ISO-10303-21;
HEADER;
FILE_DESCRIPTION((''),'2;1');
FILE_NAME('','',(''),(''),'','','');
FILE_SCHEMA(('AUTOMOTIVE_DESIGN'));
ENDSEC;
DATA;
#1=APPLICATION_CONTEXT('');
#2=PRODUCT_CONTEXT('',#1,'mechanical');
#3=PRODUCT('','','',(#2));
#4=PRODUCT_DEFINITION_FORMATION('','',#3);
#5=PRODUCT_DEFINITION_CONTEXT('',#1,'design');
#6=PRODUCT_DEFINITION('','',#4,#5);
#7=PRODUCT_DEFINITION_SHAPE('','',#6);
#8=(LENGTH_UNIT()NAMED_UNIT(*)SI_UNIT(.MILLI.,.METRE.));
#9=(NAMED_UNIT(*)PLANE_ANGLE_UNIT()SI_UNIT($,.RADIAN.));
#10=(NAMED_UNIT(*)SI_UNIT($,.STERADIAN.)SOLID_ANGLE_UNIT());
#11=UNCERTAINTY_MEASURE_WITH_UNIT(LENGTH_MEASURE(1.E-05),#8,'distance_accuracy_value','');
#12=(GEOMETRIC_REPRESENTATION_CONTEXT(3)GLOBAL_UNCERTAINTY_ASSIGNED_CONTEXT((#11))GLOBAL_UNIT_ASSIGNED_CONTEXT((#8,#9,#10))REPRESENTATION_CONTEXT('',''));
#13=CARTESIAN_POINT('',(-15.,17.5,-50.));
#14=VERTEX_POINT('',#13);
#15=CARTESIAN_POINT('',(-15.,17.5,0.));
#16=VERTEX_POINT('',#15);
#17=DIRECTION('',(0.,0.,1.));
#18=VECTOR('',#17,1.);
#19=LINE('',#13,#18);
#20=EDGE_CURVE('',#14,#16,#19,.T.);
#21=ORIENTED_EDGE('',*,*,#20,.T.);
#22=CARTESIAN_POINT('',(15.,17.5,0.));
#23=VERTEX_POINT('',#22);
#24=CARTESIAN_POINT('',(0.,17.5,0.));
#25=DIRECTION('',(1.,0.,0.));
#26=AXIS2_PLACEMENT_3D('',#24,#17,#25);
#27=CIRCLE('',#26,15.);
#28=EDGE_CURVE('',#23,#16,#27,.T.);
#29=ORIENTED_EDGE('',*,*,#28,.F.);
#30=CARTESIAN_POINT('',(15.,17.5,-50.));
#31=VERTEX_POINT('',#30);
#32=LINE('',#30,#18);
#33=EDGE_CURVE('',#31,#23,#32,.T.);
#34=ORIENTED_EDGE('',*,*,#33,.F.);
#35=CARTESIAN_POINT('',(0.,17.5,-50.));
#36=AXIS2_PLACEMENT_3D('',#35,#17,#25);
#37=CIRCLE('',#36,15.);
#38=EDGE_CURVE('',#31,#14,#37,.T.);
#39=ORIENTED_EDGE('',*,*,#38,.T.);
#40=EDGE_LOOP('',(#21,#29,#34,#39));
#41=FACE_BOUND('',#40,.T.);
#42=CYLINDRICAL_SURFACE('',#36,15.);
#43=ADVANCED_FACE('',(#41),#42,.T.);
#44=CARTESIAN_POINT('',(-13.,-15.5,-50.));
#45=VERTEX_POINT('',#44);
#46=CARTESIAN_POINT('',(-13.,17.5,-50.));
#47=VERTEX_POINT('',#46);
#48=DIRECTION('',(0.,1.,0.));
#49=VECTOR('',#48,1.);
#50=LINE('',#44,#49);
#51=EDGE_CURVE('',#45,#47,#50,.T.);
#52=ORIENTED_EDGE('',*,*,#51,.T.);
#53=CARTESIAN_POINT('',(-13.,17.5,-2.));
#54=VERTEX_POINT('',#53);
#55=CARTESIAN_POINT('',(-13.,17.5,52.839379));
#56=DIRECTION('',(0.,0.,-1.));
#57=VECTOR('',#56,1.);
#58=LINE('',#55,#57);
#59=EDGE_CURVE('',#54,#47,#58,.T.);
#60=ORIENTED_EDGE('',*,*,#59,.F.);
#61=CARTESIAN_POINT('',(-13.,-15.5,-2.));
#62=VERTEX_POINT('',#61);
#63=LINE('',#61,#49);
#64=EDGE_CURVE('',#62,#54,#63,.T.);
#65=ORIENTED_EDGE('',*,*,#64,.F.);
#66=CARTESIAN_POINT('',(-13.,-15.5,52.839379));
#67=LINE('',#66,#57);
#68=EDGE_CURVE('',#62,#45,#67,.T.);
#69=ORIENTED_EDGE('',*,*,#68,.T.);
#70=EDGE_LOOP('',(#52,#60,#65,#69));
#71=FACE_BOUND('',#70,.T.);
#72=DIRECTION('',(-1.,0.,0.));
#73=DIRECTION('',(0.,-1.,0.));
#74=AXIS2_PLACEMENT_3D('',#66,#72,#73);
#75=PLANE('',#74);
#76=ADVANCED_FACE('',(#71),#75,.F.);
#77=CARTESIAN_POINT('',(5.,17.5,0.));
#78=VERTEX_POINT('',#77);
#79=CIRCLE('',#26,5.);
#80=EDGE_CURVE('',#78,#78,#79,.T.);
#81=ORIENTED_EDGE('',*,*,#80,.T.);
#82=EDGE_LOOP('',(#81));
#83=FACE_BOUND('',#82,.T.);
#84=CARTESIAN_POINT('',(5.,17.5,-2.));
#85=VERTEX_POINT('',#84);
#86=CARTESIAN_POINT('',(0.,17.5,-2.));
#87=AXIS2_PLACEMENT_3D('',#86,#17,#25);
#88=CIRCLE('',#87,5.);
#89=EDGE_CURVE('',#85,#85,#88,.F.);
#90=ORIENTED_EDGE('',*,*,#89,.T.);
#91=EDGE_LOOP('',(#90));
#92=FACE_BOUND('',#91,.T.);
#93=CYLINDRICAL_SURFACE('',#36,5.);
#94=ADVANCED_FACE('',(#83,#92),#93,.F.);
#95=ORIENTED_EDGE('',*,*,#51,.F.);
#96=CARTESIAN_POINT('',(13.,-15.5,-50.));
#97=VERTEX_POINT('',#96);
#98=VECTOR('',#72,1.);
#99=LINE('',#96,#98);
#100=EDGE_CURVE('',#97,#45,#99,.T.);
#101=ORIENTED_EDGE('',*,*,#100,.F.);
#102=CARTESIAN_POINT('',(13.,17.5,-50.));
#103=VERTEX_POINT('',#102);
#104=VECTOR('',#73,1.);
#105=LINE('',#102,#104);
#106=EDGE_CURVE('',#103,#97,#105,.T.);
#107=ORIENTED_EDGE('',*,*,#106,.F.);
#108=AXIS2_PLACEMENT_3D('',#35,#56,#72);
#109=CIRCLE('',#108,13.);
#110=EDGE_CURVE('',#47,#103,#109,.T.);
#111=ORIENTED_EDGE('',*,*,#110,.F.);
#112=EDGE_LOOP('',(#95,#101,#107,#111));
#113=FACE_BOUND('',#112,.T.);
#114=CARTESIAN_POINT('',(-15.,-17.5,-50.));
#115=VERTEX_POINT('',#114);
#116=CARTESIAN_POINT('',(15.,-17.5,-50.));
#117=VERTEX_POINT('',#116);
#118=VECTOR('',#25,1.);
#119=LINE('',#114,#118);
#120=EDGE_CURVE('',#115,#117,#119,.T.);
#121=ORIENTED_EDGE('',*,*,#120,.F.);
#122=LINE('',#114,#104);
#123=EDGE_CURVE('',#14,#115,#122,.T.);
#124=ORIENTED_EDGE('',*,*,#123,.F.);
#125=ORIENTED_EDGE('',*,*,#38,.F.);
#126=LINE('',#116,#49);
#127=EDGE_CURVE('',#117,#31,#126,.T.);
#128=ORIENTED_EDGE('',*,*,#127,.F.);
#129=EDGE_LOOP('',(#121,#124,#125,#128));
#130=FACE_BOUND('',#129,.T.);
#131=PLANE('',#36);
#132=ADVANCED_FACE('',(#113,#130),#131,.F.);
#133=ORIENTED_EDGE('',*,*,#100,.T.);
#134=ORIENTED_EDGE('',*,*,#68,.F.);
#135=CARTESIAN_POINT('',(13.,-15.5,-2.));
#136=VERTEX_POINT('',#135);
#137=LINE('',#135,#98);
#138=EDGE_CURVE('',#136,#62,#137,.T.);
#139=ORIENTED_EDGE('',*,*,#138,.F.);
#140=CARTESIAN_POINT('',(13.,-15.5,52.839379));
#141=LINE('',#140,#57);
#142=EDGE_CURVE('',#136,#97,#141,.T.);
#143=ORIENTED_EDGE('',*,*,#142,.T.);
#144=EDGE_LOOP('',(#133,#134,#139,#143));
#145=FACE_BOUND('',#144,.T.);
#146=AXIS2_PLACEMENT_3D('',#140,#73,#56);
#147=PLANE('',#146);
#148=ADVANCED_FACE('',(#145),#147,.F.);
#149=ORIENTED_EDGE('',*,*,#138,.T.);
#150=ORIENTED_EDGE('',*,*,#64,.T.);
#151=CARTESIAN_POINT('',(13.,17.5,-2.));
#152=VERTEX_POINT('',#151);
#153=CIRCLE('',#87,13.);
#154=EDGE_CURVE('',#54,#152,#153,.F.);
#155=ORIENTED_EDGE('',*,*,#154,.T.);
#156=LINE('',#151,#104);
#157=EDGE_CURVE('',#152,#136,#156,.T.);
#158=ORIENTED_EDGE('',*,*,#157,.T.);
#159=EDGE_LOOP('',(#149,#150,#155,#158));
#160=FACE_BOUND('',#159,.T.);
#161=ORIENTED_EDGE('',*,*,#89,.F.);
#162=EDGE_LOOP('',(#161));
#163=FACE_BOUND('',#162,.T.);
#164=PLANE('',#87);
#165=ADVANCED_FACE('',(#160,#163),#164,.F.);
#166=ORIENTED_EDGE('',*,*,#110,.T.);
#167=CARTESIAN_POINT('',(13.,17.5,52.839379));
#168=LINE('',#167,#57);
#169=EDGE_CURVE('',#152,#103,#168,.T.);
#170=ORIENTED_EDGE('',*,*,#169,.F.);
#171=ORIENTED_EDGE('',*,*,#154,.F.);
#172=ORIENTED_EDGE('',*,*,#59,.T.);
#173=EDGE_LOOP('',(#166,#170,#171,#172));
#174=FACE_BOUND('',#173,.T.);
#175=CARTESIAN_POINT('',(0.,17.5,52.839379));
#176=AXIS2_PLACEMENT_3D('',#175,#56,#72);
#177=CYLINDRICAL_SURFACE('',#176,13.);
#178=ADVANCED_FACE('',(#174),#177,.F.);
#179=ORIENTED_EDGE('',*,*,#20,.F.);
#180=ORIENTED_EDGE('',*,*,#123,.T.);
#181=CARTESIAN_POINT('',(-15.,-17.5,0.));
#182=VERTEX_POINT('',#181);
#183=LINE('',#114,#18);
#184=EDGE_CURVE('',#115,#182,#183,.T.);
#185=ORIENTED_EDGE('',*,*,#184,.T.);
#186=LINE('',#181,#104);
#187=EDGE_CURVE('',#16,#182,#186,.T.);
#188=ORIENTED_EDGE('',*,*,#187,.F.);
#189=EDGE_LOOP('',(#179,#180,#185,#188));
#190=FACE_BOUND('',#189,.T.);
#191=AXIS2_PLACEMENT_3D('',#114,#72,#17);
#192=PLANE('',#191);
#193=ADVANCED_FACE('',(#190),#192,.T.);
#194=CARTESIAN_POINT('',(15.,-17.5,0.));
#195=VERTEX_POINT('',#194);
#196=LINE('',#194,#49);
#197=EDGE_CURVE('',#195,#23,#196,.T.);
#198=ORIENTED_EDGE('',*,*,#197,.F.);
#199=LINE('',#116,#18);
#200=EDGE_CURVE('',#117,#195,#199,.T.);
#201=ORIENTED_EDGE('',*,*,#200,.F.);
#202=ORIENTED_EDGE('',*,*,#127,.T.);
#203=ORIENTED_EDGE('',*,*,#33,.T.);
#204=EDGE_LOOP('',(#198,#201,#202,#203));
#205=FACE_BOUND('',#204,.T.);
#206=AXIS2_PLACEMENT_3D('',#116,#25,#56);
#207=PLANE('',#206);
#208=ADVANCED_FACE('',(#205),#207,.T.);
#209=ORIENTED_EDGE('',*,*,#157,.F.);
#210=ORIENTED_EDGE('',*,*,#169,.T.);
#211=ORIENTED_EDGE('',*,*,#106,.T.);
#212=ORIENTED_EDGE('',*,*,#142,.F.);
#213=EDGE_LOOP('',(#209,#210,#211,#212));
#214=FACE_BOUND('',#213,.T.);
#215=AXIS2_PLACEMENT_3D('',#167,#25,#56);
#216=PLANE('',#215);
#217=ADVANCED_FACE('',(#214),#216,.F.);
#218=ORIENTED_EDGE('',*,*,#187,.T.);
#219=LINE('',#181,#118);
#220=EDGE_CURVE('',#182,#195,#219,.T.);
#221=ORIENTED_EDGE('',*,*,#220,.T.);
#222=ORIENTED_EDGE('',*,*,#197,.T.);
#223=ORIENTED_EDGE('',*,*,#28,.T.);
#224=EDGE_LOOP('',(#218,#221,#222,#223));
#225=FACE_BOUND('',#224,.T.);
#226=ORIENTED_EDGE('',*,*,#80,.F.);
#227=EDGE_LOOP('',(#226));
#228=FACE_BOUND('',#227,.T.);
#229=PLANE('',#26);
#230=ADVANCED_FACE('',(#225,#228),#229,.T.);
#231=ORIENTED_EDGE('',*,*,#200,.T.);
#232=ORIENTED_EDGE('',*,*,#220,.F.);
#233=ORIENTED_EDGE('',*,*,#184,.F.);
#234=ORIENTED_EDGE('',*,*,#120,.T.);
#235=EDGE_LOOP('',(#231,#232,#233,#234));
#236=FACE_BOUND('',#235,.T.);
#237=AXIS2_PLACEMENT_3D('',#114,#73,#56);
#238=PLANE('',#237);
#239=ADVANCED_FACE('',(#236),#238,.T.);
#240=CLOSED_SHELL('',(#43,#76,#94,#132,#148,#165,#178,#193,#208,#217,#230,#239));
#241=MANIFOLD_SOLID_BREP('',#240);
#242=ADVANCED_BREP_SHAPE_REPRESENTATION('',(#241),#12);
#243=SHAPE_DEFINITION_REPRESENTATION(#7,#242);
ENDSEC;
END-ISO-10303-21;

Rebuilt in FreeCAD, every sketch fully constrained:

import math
import FreeCAD as App
import Part
import Sketcher

V = App.Vector
Q = App.Units.Quantity

doc = App.newDocument("Part")
body = doc.addObject("PartDesign::Body", "Body")

sketch1 = doc.addObject("Sketcher::SketchObject", "Sketch")
body.addObject(sketch1)
sketch1.AttachmentSupport = (doc.XY_Plane, [""])
sketch1.MapMode = "FlatFace"
sketch1.addGeometry(Part.LineSegment(V(-15, -18, 0), V(15, -18, 0)), False)
sketch1.addGeometry(Part.LineSegment(V(15, -18, 0), V(15, 18, 0)), False)
sketch1.addGeometry(Part.ArcOfCircle(Part.Circle(V(0, 18, 0), V(0, 0, 1), 15), math.radians(0), math.radians(180)), False)
sketch1.addGeometry(Part.LineSegment(V(-15, 18, 0), V(-15, -18, 0)), False)
sketch1.addGeometry(Part.Circle(V(0, 18, 0), V(0, 0, 1), 5), False)
sketch1.addConstraint(Sketcher.Constraint("Coincident", 0, 2, 1, 1))
sketch1.addConstraint(Sketcher.Constraint("Tangent", 1, 2, 2, 1))
sketch1.addConstraint(Sketcher.Constraint("Tangent", 2, 2, 3, 1))
sketch1.addConstraint(Sketcher.Constraint("Coincident", 3, 2, 0, 1))
sketch1.addConstraint(Sketcher.Constraint("Horizontal", 0))
sketch1.addConstraint(Sketcher.Constraint("Vertical", 1))
sketch1.addConstraint(Sketcher.Constraint("Vertical", 3))
sketch1.addConstraint(Sketcher.Constraint("Coincident", 4, 3, 2, 3))
sketch1.addConstraint(Sketcher.Constraint("Symmetric", 0, 2, 2, 2, -1, 1))
sketch1.addConstraint(Sketcher.Constraint("Diameter", 4, Q("10 mm")))
sketch1.addConstraint(Sketcher.Constraint("Radius", 2, Q("15 mm")))
sketch1.addConstraint(Sketcher.Constraint("DistanceY", 1, 1, 1, 2, Q("35 mm")))
pad1 = doc.addObject("PartDesign::Pad", "Pad")
body.addObject(pad1)
pad1.Profile = sketch1
pad1.Length = 50
pad1.Reversed = True

sketch2 = doc.addObject("Sketcher::SketchObject", "Sketch001")
body.addObject(sketch2)
sketch2.AttachmentSupport = (doc.XY_Plane, [""])
sketch2.MapMode = "FlatFace"
sketch2.AttachmentOffset = App.Placement(V(0, 0, -50), App.Rotation())
sketch2.addGeometry(Part.LineSegment(V(13, 18, 0), V(13, -16, 0)), False)
sketch2.addGeometry(Part.LineSegment(V(13, -16, 0), V(-13, -16, 0)), False)
sketch2.addGeometry(Part.LineSegment(V(-13, -16, 0), V(-13, 18, 0)), False)
sketch2.addGeometry(Part.ArcOfCircle(Part.Circle(V(0, 18, 0), V(0, 0, 1), 13), math.radians(0), math.radians(180)), False)
sketch2.addConstraint(Sketcher.Constraint("Coincident", 0, 2, 1, 1))
sketch2.addConstraint(Sketcher.Constraint("Coincident", 1, 2, 2, 1))
sketch2.addConstraint(Sketcher.Constraint("Tangent", 2, 2, 3, 2))
sketch2.addConstraint(Sketcher.Constraint("Tangent", 3, 1, 0, 1))
sketch2.addConstraint(Sketcher.Constraint("Vertical", 0))
sketch2.addConstraint(Sketcher.Constraint("Horizontal", 1))
sketch2.addConstraint(Sketcher.Constraint("Vertical", 2))
sketch2.addConstraint(Sketcher.Constraint("PointOnObject", 3, 3, -2))
sketch2.addConstraint(Sketcher.Constraint("Radius", 3, Q("13 mm")))
sketch2.addConstraint(Sketcher.Constraint("DistanceY", 0, 2, 0, 1, Q("33 mm")))
sketch2.addConstraint(Sketcher.Constraint("DistanceY", -1, 1, 3, 3, Q("17.5 mm")))
pocket1 = doc.addObject("PartDesign::Pocket", "Pocket")
body.addObject(pocket1)
pocket1.Profile = sketch2
pocket1.Length = 48
pocket1.Reversed = True

doc.recompute()
